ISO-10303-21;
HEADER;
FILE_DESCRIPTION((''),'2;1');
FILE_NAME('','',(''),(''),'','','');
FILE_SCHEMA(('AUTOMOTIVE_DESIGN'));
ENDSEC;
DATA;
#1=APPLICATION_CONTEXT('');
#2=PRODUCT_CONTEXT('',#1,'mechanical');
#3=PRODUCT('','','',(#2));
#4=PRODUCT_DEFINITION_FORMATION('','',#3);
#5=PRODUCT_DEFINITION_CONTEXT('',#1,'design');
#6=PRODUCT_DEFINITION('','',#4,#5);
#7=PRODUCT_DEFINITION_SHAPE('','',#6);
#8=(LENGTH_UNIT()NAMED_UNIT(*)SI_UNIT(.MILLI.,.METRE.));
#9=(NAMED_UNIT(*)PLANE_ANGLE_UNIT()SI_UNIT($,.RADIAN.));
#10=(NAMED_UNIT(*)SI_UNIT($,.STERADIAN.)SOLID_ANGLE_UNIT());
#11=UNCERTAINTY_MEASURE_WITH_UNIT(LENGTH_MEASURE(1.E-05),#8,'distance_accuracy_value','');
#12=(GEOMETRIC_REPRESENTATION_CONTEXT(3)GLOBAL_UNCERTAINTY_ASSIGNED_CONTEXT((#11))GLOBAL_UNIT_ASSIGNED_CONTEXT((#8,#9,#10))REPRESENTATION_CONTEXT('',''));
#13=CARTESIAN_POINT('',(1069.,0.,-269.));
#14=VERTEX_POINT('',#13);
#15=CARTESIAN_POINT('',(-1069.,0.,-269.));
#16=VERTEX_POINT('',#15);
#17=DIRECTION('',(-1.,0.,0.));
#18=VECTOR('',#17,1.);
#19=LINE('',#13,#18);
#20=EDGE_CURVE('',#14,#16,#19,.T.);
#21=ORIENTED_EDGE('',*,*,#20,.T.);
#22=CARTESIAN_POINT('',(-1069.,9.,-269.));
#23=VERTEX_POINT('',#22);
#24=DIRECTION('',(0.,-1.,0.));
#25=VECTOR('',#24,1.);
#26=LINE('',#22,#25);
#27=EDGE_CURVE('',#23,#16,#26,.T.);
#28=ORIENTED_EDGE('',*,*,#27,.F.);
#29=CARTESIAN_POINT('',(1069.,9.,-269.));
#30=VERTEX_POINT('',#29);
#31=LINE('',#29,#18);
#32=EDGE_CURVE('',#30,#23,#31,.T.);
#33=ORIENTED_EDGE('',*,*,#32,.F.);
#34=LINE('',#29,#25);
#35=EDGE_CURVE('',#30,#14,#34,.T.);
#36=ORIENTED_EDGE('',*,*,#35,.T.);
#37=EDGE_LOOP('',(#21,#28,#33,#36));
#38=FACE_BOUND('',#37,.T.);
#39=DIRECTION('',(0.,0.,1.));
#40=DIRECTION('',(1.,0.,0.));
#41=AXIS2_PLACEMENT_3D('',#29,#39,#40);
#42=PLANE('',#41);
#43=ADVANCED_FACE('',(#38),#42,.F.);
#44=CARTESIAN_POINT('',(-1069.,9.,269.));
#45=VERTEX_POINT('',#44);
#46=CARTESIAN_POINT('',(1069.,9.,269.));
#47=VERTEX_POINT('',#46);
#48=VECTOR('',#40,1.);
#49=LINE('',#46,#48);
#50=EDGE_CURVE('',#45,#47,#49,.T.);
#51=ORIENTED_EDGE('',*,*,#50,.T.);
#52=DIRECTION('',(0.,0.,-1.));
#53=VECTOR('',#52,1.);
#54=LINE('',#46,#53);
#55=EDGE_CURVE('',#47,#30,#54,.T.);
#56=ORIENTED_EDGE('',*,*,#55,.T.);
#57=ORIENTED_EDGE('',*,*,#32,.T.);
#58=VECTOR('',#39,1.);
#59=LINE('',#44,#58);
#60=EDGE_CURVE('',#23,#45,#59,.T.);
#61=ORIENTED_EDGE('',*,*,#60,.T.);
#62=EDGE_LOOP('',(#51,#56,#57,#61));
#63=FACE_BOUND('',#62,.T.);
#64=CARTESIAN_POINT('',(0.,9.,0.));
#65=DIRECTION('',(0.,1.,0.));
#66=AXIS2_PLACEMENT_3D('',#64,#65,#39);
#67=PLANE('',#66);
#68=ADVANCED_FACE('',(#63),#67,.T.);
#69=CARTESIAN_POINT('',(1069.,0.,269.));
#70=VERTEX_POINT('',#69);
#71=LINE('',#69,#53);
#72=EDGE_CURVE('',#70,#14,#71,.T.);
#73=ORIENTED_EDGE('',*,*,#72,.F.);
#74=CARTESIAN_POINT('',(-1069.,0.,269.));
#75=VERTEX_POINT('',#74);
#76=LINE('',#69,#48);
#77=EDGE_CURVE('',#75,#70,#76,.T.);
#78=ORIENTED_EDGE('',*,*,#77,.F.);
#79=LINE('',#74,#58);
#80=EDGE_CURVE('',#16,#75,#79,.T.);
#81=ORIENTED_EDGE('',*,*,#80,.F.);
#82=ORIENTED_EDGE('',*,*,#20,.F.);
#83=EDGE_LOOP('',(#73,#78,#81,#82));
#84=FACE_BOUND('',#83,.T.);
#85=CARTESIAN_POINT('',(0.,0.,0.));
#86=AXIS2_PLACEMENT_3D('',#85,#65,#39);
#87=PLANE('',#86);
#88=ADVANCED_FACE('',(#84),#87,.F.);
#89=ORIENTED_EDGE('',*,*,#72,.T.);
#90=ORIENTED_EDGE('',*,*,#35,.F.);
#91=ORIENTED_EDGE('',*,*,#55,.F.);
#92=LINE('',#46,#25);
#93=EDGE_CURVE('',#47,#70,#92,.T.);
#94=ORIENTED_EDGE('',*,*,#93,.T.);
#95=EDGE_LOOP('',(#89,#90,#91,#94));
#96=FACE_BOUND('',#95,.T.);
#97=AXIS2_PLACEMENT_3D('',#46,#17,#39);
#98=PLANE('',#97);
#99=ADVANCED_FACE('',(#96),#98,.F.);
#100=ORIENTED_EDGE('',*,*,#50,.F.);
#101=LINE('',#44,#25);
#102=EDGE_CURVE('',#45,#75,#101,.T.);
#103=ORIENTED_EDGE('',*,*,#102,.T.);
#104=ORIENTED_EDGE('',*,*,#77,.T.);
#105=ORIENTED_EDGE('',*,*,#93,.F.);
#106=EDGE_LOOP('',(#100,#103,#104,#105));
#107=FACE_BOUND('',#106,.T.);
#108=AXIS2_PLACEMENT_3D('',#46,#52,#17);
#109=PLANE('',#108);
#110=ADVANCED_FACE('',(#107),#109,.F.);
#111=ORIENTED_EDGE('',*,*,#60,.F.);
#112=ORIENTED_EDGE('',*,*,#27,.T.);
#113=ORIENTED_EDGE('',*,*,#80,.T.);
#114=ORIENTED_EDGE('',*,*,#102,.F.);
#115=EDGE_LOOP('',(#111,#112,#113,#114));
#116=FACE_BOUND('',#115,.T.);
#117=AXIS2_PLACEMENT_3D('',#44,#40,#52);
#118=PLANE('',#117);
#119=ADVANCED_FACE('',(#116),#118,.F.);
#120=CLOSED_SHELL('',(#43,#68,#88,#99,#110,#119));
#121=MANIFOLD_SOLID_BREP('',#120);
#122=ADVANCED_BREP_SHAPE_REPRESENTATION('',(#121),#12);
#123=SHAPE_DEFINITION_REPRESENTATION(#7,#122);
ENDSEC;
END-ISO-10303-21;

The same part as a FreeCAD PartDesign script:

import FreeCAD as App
import Part
import Sketcher
from FreeCAD import Vector
Q = App.Units.Quantity


def add_polygon(sketch, points):
    """Adds a closed chain of lines whose ends are joined by coincident constraints."""
    first, n = sketch.GeometryCount, len(points)
    for a, b in zip(points, points[1:] + points[:1]):
        sketch.addGeometry(Part.LineSegment(App.Vector(*a, 0), App.Vector(*b, 0)), False)
    for i in range(n):
        sketch.addConstraint(Sketcher.Constraint("Coincident", first + i, 2, first + (i + 1) % n, 1))

doc = App.newDocument("Part")
body = doc.addObject("PartDesign::Body", "Body")

# Sketch on XZ plane
sketch1 = body.newObject("Sketcher::SketchObject", "Sketch")
sketch1.AttachmentSupport = (doc.getObject("XZ_Plane"), [""])
sketch1.MapMode = "FlatFace"
add_polygon(sketch1, [(-1069, -269), (-1069, 269), (1069, 269), (1069, -269)])  # lines 0-3
sketch1.addConstraint(Sketcher.Constraint("Vertical", 0))
sketch1.addConstraint(Sketcher.Constraint("Horizontal", 1))
sketch1.addConstraint(Sketcher.Constraint("Vertical", 2))
sketch1.addConstraint(Sketcher.Constraint("Horizontal", 3))
sketch1.addConstraint(Sketcher.Constraint("Symmetric", 0, 2, 2, 2, -1, 1))
sketch1.addConstraint(Sketcher.Constraint("DistanceX", 1, 1, 1, 2, Q("2138 mm")))
sketch1.addConstraint(Sketcher.Constraint("DistanceY", 0, 1, 0, 2, Q("538 mm")))
pad1 = body.newObject("PartDesign::Pad", "Pad")
pad1.Profile = sketch1
pad1.Length = 9
pad1.Reversed = True

doc.recompute()
